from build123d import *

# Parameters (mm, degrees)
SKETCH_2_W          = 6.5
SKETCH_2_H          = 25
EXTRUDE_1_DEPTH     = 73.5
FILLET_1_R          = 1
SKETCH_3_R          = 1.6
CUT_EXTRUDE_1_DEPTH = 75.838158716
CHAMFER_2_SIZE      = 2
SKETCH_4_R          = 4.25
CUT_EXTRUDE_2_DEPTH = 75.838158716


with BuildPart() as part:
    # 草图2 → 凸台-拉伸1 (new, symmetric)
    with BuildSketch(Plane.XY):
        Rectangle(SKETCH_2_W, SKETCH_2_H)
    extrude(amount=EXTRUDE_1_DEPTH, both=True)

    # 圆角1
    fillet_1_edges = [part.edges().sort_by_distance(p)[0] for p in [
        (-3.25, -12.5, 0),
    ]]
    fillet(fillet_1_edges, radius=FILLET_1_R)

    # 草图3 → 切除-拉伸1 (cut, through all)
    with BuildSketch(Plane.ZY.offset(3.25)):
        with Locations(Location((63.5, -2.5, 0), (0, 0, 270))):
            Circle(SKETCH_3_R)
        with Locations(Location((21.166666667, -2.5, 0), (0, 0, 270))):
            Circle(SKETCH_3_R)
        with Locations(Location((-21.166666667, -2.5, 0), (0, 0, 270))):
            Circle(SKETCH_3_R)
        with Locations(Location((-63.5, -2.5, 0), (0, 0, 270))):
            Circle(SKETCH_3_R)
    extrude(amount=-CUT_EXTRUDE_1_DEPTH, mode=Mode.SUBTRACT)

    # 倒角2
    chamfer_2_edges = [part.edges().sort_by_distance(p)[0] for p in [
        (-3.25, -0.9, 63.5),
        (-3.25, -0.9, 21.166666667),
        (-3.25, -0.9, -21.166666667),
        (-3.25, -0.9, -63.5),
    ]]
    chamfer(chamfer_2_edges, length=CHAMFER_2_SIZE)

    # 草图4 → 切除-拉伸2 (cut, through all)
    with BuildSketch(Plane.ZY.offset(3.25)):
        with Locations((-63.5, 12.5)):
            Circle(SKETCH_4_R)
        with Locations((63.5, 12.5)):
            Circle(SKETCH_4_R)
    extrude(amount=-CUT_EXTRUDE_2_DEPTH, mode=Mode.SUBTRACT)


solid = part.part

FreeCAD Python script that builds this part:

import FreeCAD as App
import Part
import Sketcher
from FreeCAD import Vector


def edges_at(feature, points):
    """Names of the edges that pass closest to the given points."""
    edges = feature.Shape.Edges
    near = lambda p: min(range(len(edges)), key=lambda i: edges[i].distToShape(Part.Vertex(*p))[0])
    return sorted({f"Edge{near(p) + 1}" for p in points})


def add_polygon(sketch, points):
    """Adds a closed chain of lines whose ends are joined by coincident constraints."""
    first, n = sketch.GeometryCount, len(points)
    for a, b in zip(points, points[1:] + points[:1]):
        sketch.addGeometry(Part.LineSegment(App.Vector(*a, 0), App.Vector(*b, 0)), False)
    for i in range(n):
        sketch.addConstraint(Sketcher.Constraint("Coincident", first + i, 2, first + (i + 1) % n, 1))

doc = App.newDocument("Part")
params = doc.addObject("Spreadsheet::Sheet", "Params")
for row, (alias, value) in enumerate([
    ("sketch1_height", "25 mm"),
    ("sketch1_width", "6.5 mm"),
    ("pad1_length", "147 mm"),
    ("fillet_radius", "1 mm"),
    ("sketch2_diameter", "3.2 mm"),
    ("chamfer_size", "2 mm"),
    ("sketch3_diameter", "8.5 mm"),
], start=1):
    params.set(f"A{row}", alias)
    params.set(f"B{row}", "=" + value)
    params.setAlias(f"B{row}", alias)

body = doc.addObject("PartDesign::Body", "Body")

# Sketch on XY plane
sketch1 = body.newObject("Sketcher::SketchObject", "Sketch")
sketch1.AttachmentSupport = (doc.getObject("XY_Plane"), [""])
sketch1.MapMode = "FlatFace"
add_polygon(sketch1, [(-3, 12), (-3, -12), (3, -12), (3, 12)])  # lines 0-3
sketch1.addConstraint([
    Sketcher.Constraint("Vertical", 0),
    Sketcher.Constraint("Horizontal", 1),
    Sketcher.Constraint("Vertical", 2),
    Sketcher.Constraint("Horizontal", 3),
    Sketcher.Constraint("Symmetric", 0, 2, 2, 2, -1, 1),
    Sketcher.Constraint("DistanceY", 0, 2, 0, 1, 25.0),
    Sketcher.Constraint("DistanceX", 1, 1, 1, 2, 6.5),
])
sketch1.setExpression("Constraints[9]", "Params.sketch1_height")
sketch1.setExpression("Constraints[10]", "Params.sketch1_width")
pad1 = body.newObject("PartDesign::Pad", "Pad")
pad1.Profile = sketch1
pad1.setExpression("Length", "Params.pad1_length")
pad1.Midplane = True
doc.recompute()

fillet = body.newObject("PartDesign::Fillet", "Fillet")
fillet.Base = (pad1, edges_at(pad1, [(-3.25, -12.5, 0)]))
fillet.setExpression("Radius", "Params.fillet_radius")

# Sketch on YZ plane
sketch2 = body.newObject("Sketcher::SketchObject", "Sketch001")
sketch2.AttachmentSupport = (doc.getObject("YZ_Plane"), [""])
sketch2.MapMode = "FlatFace"
sketch2.AttachmentOffset = App.Placement(Vector(0, 0, -3.25), App.Rotation())
sketch2.addGeometry([
    Part.Circle(Vector(-2.5, 63.5, 0), Vector(0, 0, 1), 1.6),
    Part.Circle(Vector(-2.5, 21.2, 0), Vector(0, 0, 1), 1.6),
    Part.Circle(Vector(-2.5, -21.2, 0), Vector(0, 0, 1), 1.6),
    Part.Circle(Vector(-2.5, -63.5, 0), Vector(0, 0, 1), 1.6),
], False)
sketch2.addConstraint([
    Sketcher.Constraint("Equal", 0, 1),
    Sketcher.Constraint("Equal", 1, 2),
    Sketcher.Constraint("Equal", 2, 3),
    Sketcher.Constraint("Symmetric", 1, 3, 2, 3, -1),
    Sketcher.Constraint("Symmetric", 0, 3, 3, 3, -1),
    Sketcher.Constraint("Vertical", 0, 3, 1, 3),
    Sketcher.Constraint("Diameter", 0, 3.2),
    Sketcher.Constraint("DistanceY", 3, 3, 0, 3, 127.0),
    Sketcher.Constraint("DistanceX", 0, 3, -1, 1, 2.5),
    Sketcher.Constraint("DistanceY", -1, 1, 1, 3, 21.166667),
])
sketch2.setExpression("Constraints[6]", "Params.sketch2_diameter")
pocket1 = body.newObject("PartDesign::Pocket", "Pocket")
pocket1.Profile = sketch2
pocket1.Type = "ThroughAll"
pocket1.Reversed = True
doc.recompute()

chamfer = body.newObject("PartDesign::Chamfer", "Chamfer")
chamfer.Base = (pocket1, edges_at(pocket1, [
    (-3.25, -0.9, 63.5),
    (-3.25, -0.9, 21.167),
    (-3.25, -0.9, -21.167),
    (-3.25, -0.9, -63.5),
]))
chamfer.setExpression("Size", "Params.chamfer_size")

# Sketch on YZ plane
sketch3 = body.newObject("Sketcher::SketchObject", "Sketch002")
sketch3.AttachmentSupport = (doc.getObject("YZ_Plane"), [""])
sketch3.MapMode = "FlatFace"
sketch3.AttachmentOffset = App.Placement(Vector(0, 0, -3.25), App.Rotation())
sketch3.addGeometry([
    Part.Circle(Vector(12.5, -63.5, 0), Vector(0, 0, 1), 4.2),
    Part.Circle(Vector(12.5, 63.5, 0), Vector(0, 0, 1), 4.2),
], False)
sketch3.addConstraint([
    Sketcher.Constraint("Equal", 0, 1),
    Sketcher.Constraint("Symmetric", 0, 3, 1, 3, -1),
    Sketcher.Constraint("Diameter", 0, 8.5),
    Sketcher.Constraint("DistanceY", 0, 3, 1, 3, 127.0),
    Sketcher.Constraint("DistanceX", -1, 1, 0, 3, 12.5),
])
sketch3.setExpression("Constraints[2]", "Params.sketch3_diameter")
pocket2 = body.newObject("PartDesign::Pocket", "Pocket001")
pocket2.Profile = sketch3
pocket2.Type = "ThroughAll"
pocket2.Reversed = True

doc.recompute()
